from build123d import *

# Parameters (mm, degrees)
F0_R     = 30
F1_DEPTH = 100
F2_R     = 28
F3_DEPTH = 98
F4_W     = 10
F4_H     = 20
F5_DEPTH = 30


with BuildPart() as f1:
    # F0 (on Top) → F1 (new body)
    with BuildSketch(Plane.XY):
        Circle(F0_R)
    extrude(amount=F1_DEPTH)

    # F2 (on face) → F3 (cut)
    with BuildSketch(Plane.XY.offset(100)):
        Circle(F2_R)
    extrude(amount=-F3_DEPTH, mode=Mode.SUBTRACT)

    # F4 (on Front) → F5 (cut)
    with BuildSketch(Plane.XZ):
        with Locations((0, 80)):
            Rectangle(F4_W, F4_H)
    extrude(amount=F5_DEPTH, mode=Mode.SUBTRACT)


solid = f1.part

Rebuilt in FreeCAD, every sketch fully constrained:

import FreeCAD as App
import Part
import Sketcher

doc = App.newDocument("Part")
body = doc.addObject("PartDesign::Body", "Body")

# Sketch on XY plane
sketch1 = body.newObject("Sketcher::SketchObject", "Sketch")
sketch1.AttachmentSupport = (doc.getObject("XY_Plane"), [""])
sketch1.MapMode = "FlatFace"
sketch1.addGeometry(Part.Circle(App.Vector(0, 0, 0), App.Vector(0, 0, 1), 30), False)
sketch1.addConstraint(Sketcher.Constraint("Coincident", 0, 3, -1, 1))
sketch1.addConstraint(Sketcher.Constraint("Diameter", 0, 60.0))
pad1 = body.newObject("PartDesign::Pad", "Pad")
pad1.Profile = sketch1
pad1.Length = 100

# Sketch on XY plane
sketch2 = body.newObject("Sketcher::SketchObject", "Sketch001")
sketch2.AttachmentSupport = (doc.getObject("XY_Plane"), [""])
sketch2.MapMode = "FlatFace"
sketch2.AttachmentOffset = App.Placement(App.Vector(0, 0, 100), App.Rotation())
sketch2.addGeometry(Part.Circle(App.Vector(0, 0, 0), App.Vector(0, 0, 1), 28), False)
sketch2.addConstraint(Sketcher.Constraint("Coincident", 0, 3, -1, 1))
sketch2.addConstraint(Sketcher.Constraint("Diameter", 0, 56.0))
pocket1 = body.newObject("PartDesign::Pocket", "Pocket")
pocket1.Profile = sketch2
pocket1.Length = 98

# Sketch on XZ plane
sketch3 = body.newObject("Sketcher::SketchObject", "Sketch002")
sketch3.AttachmentSupport = (doc.getObject("XZ_Plane"), [""])
sketch3.MapMode = "FlatFace"
sketch3.addGeometry(Part.LineSegment(App.Vector(-5, 90, 0), App.Vector(-5, 70, 0)), False)
sketch3.addGeometry(Part.LineSegment(App.Vector(-5, 70, 0), App.Vector(5, 70, 0)), False)
sketch3.addGeometry(Part.LineSegment(App.Vector(5, 70, 0), App.Vector(5, 90, 0)), False)
sketch3.addGeometry(Part.LineSegment(App.Vector(5, 90, 0), App.Vector(-5, 90, 0)), False)
sketch3.addConstraint(Sketcher.Constraint("Coincident", 0, 2, 1, 1))
sketch3.addConstraint(Sketcher.Constraint("Coincident", 1, 2, 2, 1))
sketch3.addConstraint(Sketcher.Constraint("Coincident", 2, 2, 3, 1))
sketch3.addConstraint(Sketcher.Constraint("Coincident", 3, 2, 0, 1))
sketch3.addConstraint(Sketcher.Constraint("Vertical", 0))
sketch3.addConstraint(Sketcher.Constraint("Horizontal", 1))
sketch3.addConstraint(Sketcher.Constraint("Vertical", 2))
sketch3.addConstraint(Sketcher.Constraint("Horizontal", 3))
sketch3.addConstraint(Sketcher.Constraint("DistanceX", 1, 1, 1, 2, 10.0))
sketch3.addConstraint(Sketcher.Constraint("DistanceY", 0, 2, 0, 1, 20.0))
sketch3.addConstraint(Sketcher.Constraint("DistanceX", 0, 2, -1, 1, 5.0))
sketch3.addConstraint(Sketcher.Constraint("DistanceY", -1, 1, 0, 2, 70.0))
pocket2 = body.newObject("PartDesign::Pocket", "Pocket001")
pocket2.Profile = sketch3
pocket2.Length = 30
pocket2.Reversed = True

doc.recompute()
